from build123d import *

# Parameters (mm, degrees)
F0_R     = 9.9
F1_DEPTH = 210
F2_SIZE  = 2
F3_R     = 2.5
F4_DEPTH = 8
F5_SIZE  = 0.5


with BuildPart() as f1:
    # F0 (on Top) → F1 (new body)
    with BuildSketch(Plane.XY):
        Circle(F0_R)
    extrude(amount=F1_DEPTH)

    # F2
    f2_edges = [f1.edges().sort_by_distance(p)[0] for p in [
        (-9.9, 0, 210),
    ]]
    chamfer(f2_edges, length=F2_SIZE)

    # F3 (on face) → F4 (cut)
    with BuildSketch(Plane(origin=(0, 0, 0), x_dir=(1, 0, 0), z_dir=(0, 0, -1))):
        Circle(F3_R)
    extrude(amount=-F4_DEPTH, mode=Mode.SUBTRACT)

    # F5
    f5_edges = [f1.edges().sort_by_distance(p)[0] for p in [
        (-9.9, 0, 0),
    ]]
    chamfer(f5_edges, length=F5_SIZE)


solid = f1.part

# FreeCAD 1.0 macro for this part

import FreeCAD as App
import Part
import Sketcher


def edges_at(feature, points):
    """Names of the edges that pass closest to the given points."""
    edges = feature.Shape.Edges
    near = lambda p: min(range(len(edges)), key=lambda i: edges[i].distToShape(Part.Vertex(*p))[0])
    return sorted({f"Edge{near(p) + 1}" for p in points})

doc = App.newDocument("Part")
body = doc.addObject("PartDesign::Body", "Body")

# Sketch on XY plane
sketch1 = body.newObject("Sketcher::SketchObject", "Sketch")
sketch1.AttachmentSupport = (doc.getObject("XY_Plane"), [""])
sketch1.MapMode = "FlatFace"
sketch1.addGeometry(Part.Circle(App.Vector(0, 0, 0), App.Vector(0, 0, 1), 9.9), False)
sketch1.addConstraint(Sketcher.Constraint("Coincident", 0, 3, -1, 1))
sketch1.addConstraint(Sketcher.Constraint("Diameter", 0, 19.8))
pad1 = body.newObject("PartDesign::Pad", "Pad")
pad1.Profile = sketch1
pad1.Length = 210
doc.recompute()

chamfer = body.newObject("PartDesign::Chamfer", "Chamfer")
chamfer.Base = (pad1, edges_at(pad1, [(-9.9, 0, 210)]))
chamfer.Size = 2

# Sketch on XY plane
sketch2 = body.newObject("Sketcher::SketchObject", "Sketch001")
sketch2.AttachmentSupport = (doc.getObject("XY_Plane"), [""])
sketch2.MapMode = "FlatFace"
sketch2.addGeometry(Part.Circle(App.Vector(0, 0, 0), App.Vector(0, 0, 1), 2.5), False)
sketch2.addConstraint(Sketcher.Constraint("Coincident", 0, 3, -1, 1))
sketch2.addConstraint(Sketcher.Constraint("Diameter", 0, 5.0))
pocket1 = body.newObject("PartDesign::Pocket", "Pocket")
pocket1.Profile = sketch2
pocket1.Length = 8
pocket1.Reversed = True
doc.recompute()

chamfer2 = body.newObject("PartDesign::Chamfer", "Chamfer001")
chamfer2.Base = (pocket1, edges_at(pocket1, [(-9.9, 0, 0)]))
chamfer2.Size = 0.5

doc.recompute()
